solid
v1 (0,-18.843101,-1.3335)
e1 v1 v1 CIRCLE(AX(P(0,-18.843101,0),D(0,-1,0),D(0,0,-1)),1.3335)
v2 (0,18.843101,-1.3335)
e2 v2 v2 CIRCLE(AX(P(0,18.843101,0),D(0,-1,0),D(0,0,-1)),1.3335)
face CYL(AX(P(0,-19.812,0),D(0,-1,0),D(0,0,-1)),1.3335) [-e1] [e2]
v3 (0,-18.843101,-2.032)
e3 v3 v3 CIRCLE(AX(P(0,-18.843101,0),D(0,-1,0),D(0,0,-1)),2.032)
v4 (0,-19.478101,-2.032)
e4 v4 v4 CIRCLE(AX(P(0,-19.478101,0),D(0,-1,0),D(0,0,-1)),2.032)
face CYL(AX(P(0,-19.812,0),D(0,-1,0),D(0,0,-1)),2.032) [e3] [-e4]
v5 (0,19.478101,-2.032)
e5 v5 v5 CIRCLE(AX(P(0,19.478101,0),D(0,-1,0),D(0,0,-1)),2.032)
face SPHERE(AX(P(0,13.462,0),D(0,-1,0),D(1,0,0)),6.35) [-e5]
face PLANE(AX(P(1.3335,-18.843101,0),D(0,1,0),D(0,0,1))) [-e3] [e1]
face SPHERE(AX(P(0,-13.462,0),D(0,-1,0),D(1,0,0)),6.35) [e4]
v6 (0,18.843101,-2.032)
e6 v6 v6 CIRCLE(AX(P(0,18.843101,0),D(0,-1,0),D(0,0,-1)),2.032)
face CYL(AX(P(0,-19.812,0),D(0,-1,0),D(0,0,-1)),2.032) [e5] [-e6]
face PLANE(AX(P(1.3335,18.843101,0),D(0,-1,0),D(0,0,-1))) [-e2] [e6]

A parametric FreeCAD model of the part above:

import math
import FreeCAD as App
import Part
import Sketcher
Q = App.Units.Quantity

doc = App.newDocument("Part")
body = doc.addObject("PartDesign::Body", "Body")

# Sketch on XY plane
sketch1 = doc.addObject("Sketcher::SketchObject", "Sketch")
body.addObject(sketch1)
sketch1.AttachmentSupport = (doc.XY_Plane, [""])
sketch1.MapMode = "FlatFace"
sketch1.addGeometry([
    Part.LineSegment(App.Vector(0, 19.8, 0), App.Vector(0, -19.8, 0)),  # 0
    Part.ArcOfCircle(Part.Circle(App.Vector(0, -13.5, 0), App.Vector(0, 0, 1), 6.3), math.radians(-90), math.radians(-71.34)),  # 1
    Part.LineSegment(App.Vector(2, -19.5, 0), App.Vector(2, -18.8, 0)),  # 2
    Part.LineSegment(App.Vector(2, -18.8, 0), App.Vector(1.3, -18.8, 0)),  # 3
    Part.LineSegment(App.Vector(1.3, -18.8, 0), App.Vector(1.3, 18.8, 0)),  # 4
    Part.LineSegment(App.Vector(1.3, 18.8, 0), App.Vector(2, 18.8, 0)),  # 5
    Part.LineSegment(App.Vector(2, 18.8, 0), App.Vector(2, 19.5, 0)),  # 6
    Part.ArcOfCircle(Part.Circle(App.Vector(0, 13.5, 0), App.Vector(0, 0, 1), 6.3), math.radians(71.34), math.radians(90)),  # 7
], False)
sketch1.addConstraint([
    Sketcher.Constraint("Coincident", 0, 2, 1, 1),
    Sketcher.Constraint("Coincident", 1, 2, 2, 1),
    Sketcher.Constraint("Coincident", 2, 2, 3, 1),
    Sketcher.Constraint("Coincident", 3, 2, 4, 1),
    Sketcher.Constraint("Coincident", 4, 2, 5, 1),
    Sketcher.Constraint("Coincident", 5, 2, 6, 1),
    Sketcher.Constraint("Coincident", 6, 2, 7, 1),
    Sketcher.Constraint("Coincident", 7, 2, 0, 1),
    Sketcher.Constraint("Vertical", 0),
    Sketcher.Constraint("Vertical", 2),
    Sketcher.Constraint("Horizontal", 3),
    Sketcher.Constraint("Vertical", 4),
    Sketcher.Constraint("Horizontal", 5),
    Sketcher.Constraint("Vertical", 6),
    Sketcher.Constraint("Equal", 1, 7),
    Sketcher.Constraint("Symmetric", 1, 3, 7, 3, -1, 1),
    Sketcher.Constraint("Symmetric", 2, 2, 5, 2, -1),
    Sketcher.Constraint("PointOnObject", 1, 3, -2),
    Sketcher.Constraint("PointOnObject", 0, 2, -2),
    Sketcher.Constraint("Radius", 1, Q("0.25 in")),
    Sketcher.Constraint("DistanceY", 0, 2, 0, 1, Q("1.56 in")),
    Sketcher.Constraint("DistanceY", 2, 1, 2, 2, Q("0.025 in")),
    Sketcher.Constraint("DistanceX", -1, 1, 1, 2, Q("0.08 in")),
    Sketcher.Constraint("DistanceX", 3, 2, 3, 1, Q("0.0275 in")),
])
revolution = doc.addObject("PartDesign::Revolution", "Revolution")
body.addObject(revolution)
revolution.Profile = sketch1
revolution.ReferenceAxis = (sketch1, ["V_Axis"])
revolution.Angle = 360

doc.recompute()
